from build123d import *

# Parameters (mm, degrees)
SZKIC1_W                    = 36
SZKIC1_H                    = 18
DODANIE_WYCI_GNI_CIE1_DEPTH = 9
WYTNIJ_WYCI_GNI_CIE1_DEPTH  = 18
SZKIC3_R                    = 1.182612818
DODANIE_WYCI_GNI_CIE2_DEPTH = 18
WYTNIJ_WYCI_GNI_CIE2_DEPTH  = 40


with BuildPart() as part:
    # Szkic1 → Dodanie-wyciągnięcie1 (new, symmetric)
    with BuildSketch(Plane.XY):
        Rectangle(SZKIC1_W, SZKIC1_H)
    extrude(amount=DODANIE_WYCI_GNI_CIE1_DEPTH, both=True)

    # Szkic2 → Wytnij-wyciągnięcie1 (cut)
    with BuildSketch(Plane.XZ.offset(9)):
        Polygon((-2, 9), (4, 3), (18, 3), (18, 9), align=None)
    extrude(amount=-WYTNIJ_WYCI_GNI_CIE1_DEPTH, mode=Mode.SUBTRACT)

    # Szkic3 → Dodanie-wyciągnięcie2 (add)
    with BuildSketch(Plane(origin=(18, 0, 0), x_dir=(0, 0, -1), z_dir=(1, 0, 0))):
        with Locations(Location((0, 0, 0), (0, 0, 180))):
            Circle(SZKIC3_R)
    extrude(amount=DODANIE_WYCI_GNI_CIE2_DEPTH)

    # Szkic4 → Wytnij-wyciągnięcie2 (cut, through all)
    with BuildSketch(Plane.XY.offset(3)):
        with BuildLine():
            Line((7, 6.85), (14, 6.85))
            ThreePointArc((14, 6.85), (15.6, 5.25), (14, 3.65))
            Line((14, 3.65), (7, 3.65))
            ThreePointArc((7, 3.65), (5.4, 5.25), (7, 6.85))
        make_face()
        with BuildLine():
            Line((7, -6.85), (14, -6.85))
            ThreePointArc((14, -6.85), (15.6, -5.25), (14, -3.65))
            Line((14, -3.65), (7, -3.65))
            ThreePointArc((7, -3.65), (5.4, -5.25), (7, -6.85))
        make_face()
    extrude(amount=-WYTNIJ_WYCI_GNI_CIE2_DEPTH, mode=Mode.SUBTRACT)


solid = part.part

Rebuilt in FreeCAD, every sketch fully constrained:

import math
import FreeCAD as App
import Part
import Sketcher
from FreeCAD import Vector
Q = App.Units.Quantity

doc = App.newDocument("Part")
body = doc.addObject("PartDesign::Body", "Body")

sketch1 = body.newObject("Sketcher::SketchObject", "Sketch")
sketch1.AttachmentSupport = (doc.getObject("XY_Plane"), [""])
sketch1.MapMode = "FlatFace"
sketch1.addGeometry([
    Part.LineSegment(Vector(-18, 9, 0), Vector(-18, -9, 0)),
    Part.LineSegment(Vector(-18, -9, 0), Vector(18, -9, 0)),
    Part.LineSegment(Vector(18, -9, 0), Vector(18, 9, 0)),
    Part.LineSegment(Vector(18, 9, 0), Vector(-18, 9, 0)),
], False)
sketch1.addConstraint([
    Sketcher.Constraint("Coincident", 0, 2, 1, 1),
    Sketcher.Constraint("Coincident", 1, 2, 2, 1),
    Sketcher.Constraint("Coincident", 2, 2, 3, 1),
    Sketcher.Constraint("Coincident", 3, 2, 0, 1),
    Sketcher.Constraint("Vertical", 0),
    Sketcher.Constraint("Horizontal", 1),
    Sketcher.Constraint("Vertical", 2),
    Sketcher.Constraint("Horizontal", 3),
    Sketcher.Constraint("Symmetric", 0, 2, 2, 2, -1, 1),
    Sketcher.Constraint("DistanceX", 1, 1, 1, 2, Q("36 mm")),
    Sketcher.Constraint("DistanceY", 0, 2, 0, 1, Q("18 mm")),
])
pad1 = body.newObject("PartDesign::Pad", "Pad")
pad1.Profile = sketch1
pad1.Length = 18
pad1.Midplane = True

sketch2 = body.newObject("Sketcher::SketchObject", "Sketch001")
sketch2.AttachmentSupport = (doc.getObject("XZ_Plane"), [""])
sketch2.MapMode = "FlatFace"
sketch2.AttachmentOffset = App.Placement(Vector(0, 0, 9), App.Rotation())
sketch2.addGeometry([
    Part.LineSegment(Vector(-2, 9, 0), Vector(4, 3, 0)),
    Part.LineSegment(Vector(4, 3, 0), Vector(18, 3, 0)),
    Part.LineSegment(Vector(18, 3, 0), Vector(18, 9, 0)),
    Part.LineSegment(Vector(18, 9, 0), Vector(-2, 9, 0)),
], False)
sketch2.addConstraint([
    Sketcher.Constraint("Coincident", 0, 2, 1, 1),
    Sketcher.Constraint("Coincident", 1, 2, 2, 1),
    Sketcher.Constraint("Coincident", 2, 2, 3, 1),
    Sketcher.Constraint("Coincident", 3, 2, 0, 1),
    Sketcher.Constraint("Horizontal", 1),
    Sketcher.Constraint("Vertical", 2),
    Sketcher.Constraint("Horizontal", 3),
    Sketcher.Constraint("DistanceX", 1, 1, 1, 2, Q("14 mm")),
    Sketcher.Constraint("DistanceX", 3, 2, 3, 1, Q("20 mm")),
    Sketcher.Constraint("DistanceY", 2, 1, 2, 2, Q("6 mm")),
    Sketcher.Constraint("DistanceX", -1, 1, 0, 2, Q("4 mm")),
    Sketcher.Constraint("DistanceY", -1, 1, 0, 2, Q("3 mm")),
])
pocket1 = body.newObject("PartDesign::Pocket", "Pocket")
pocket1.Profile = sketch2
pocket1.Length = 18

sketch3 = body.newObject("Sketcher::SketchObject", "Sketch002")
sketch3.AttachmentSupport = (doc.getObject("YZ_Plane"), [""])
sketch3.MapMode = "FlatFace"
sketch3.AttachmentOffset = App.Placement(Vector(0, 0, 18), App.Rotation())
sketch3.addGeometry(Part.Circle(Vector(0, 0, 0), Vector(0, 0, 1), 1.2), False)
sketch3.addConstraint([
    Sketcher.Constraint("Coincident", 0, 3, -1, 1),
    Sketcher.Constraint("Diameter", 0, Q("2.365226 mm")),
])
pad2 = body.newObject("PartDesign::Pad", "Pad001")
pad2.Profile = sketch3
pad2.Length = 18

sketch4 = body.newObject("Sketcher::SketchObject", "Sketch003")
sketch4.AttachmentSupport = (doc.getObject("XY_Plane"), [""])
sketch4.MapMode = "FlatFace"
sketch4.AttachmentOffset = App.Placement(Vector(0, 0, 3), App.Rotation())
sketch4.addGeometry([
    Part.LineSegment(Vector(14, 6.8, 0), Vector(7, 6.8, 0)),
    Part.ArcOfCircle(Part.Circle(Vector(7, 5.2, 0), Vector(0, 0, 1), 1.6), math.radians(90), math.radians(270)),
    Part.LineSegment(Vector(7, 3.6, 0), Vector(14, 3.6, 0)),
    Part.ArcOfCircle(Part.Circle(Vector(14, 5.2, 0), Vector(0, 0, 1), 1.6), math.radians(-90), math.radians(90)),
    Part.LineSegment(Vector(7, -6.8, 0), Vector(14, -6.8, 0)),
    Part.ArcOfCircle(Part.Circle(Vector(14, -5.2, 0), Vector(0, 0, 1), 1.6), math.radians(-90), math.radians(90)),
    Part.LineSegment(Vector(14, -3.6, 0), Vector(7, -3.6, 0)),
    Part.ArcOfCircle(Part.Circle(Vector(7, -5.2, 0), Vector(0, 0, 1), 1.6), math.radians(90), math.radians(270)),
], False)
sketch4.addConstraint([
    Sketcher.Constraint("Tangent", 0, 2, 1, 1),
    Sketcher.Constraint("Tangent", 1, 2, 2, 1),
    Sketcher.Constraint("Tangent", 2, 2, 3, 1),
    Sketcher.Constraint("Tangent", 3, 2, 0, 1),
    Sketcher.Constraint("Tangent", 4, 2, 5, 1),
    Sketcher.Constraint("Tangent", 5, 2, 6, 1),
    Sketcher.Constraint("Tangent", 6, 2, 7, 1),
    Sketcher.Constraint("Tangent", 7, 2, 4, 1),
    Sketcher.Constraint("Horizontal", 0),
    Sketcher.Constraint("Horizontal", 2),
    Sketcher.Constraint("Horizontal", 4),
    Sketcher.Constraint("Horizontal", 6),
    Sketcher.Constraint("Equal", 3, 5),
    Sketcher.Constraint("Symmetric", 3, 3, 5, 3, -1),
    Sketcher.Constraint("Vertical", 1, 3, 7, 3),
    Sketcher.Constraint("Radius", 1, Q("1.6 mm")),
    Sketcher.Constraint("DistanceX", 0, 2, 0, 1, Q("7 mm")),
    Sketcher.Constraint("DistanceX", -1, 1, 1, 3, Q("7 mm")),
    Sketcher.Constraint("DistanceY", 5, 3, 3, 3, Q("10.5 mm")),
])
pocket2 = body.newObject("PartDesign::Pocket", "Pocket001")
pocket2.Profile = sketch4
pocket2.Type = "ThroughAll"

doc.recompute()
